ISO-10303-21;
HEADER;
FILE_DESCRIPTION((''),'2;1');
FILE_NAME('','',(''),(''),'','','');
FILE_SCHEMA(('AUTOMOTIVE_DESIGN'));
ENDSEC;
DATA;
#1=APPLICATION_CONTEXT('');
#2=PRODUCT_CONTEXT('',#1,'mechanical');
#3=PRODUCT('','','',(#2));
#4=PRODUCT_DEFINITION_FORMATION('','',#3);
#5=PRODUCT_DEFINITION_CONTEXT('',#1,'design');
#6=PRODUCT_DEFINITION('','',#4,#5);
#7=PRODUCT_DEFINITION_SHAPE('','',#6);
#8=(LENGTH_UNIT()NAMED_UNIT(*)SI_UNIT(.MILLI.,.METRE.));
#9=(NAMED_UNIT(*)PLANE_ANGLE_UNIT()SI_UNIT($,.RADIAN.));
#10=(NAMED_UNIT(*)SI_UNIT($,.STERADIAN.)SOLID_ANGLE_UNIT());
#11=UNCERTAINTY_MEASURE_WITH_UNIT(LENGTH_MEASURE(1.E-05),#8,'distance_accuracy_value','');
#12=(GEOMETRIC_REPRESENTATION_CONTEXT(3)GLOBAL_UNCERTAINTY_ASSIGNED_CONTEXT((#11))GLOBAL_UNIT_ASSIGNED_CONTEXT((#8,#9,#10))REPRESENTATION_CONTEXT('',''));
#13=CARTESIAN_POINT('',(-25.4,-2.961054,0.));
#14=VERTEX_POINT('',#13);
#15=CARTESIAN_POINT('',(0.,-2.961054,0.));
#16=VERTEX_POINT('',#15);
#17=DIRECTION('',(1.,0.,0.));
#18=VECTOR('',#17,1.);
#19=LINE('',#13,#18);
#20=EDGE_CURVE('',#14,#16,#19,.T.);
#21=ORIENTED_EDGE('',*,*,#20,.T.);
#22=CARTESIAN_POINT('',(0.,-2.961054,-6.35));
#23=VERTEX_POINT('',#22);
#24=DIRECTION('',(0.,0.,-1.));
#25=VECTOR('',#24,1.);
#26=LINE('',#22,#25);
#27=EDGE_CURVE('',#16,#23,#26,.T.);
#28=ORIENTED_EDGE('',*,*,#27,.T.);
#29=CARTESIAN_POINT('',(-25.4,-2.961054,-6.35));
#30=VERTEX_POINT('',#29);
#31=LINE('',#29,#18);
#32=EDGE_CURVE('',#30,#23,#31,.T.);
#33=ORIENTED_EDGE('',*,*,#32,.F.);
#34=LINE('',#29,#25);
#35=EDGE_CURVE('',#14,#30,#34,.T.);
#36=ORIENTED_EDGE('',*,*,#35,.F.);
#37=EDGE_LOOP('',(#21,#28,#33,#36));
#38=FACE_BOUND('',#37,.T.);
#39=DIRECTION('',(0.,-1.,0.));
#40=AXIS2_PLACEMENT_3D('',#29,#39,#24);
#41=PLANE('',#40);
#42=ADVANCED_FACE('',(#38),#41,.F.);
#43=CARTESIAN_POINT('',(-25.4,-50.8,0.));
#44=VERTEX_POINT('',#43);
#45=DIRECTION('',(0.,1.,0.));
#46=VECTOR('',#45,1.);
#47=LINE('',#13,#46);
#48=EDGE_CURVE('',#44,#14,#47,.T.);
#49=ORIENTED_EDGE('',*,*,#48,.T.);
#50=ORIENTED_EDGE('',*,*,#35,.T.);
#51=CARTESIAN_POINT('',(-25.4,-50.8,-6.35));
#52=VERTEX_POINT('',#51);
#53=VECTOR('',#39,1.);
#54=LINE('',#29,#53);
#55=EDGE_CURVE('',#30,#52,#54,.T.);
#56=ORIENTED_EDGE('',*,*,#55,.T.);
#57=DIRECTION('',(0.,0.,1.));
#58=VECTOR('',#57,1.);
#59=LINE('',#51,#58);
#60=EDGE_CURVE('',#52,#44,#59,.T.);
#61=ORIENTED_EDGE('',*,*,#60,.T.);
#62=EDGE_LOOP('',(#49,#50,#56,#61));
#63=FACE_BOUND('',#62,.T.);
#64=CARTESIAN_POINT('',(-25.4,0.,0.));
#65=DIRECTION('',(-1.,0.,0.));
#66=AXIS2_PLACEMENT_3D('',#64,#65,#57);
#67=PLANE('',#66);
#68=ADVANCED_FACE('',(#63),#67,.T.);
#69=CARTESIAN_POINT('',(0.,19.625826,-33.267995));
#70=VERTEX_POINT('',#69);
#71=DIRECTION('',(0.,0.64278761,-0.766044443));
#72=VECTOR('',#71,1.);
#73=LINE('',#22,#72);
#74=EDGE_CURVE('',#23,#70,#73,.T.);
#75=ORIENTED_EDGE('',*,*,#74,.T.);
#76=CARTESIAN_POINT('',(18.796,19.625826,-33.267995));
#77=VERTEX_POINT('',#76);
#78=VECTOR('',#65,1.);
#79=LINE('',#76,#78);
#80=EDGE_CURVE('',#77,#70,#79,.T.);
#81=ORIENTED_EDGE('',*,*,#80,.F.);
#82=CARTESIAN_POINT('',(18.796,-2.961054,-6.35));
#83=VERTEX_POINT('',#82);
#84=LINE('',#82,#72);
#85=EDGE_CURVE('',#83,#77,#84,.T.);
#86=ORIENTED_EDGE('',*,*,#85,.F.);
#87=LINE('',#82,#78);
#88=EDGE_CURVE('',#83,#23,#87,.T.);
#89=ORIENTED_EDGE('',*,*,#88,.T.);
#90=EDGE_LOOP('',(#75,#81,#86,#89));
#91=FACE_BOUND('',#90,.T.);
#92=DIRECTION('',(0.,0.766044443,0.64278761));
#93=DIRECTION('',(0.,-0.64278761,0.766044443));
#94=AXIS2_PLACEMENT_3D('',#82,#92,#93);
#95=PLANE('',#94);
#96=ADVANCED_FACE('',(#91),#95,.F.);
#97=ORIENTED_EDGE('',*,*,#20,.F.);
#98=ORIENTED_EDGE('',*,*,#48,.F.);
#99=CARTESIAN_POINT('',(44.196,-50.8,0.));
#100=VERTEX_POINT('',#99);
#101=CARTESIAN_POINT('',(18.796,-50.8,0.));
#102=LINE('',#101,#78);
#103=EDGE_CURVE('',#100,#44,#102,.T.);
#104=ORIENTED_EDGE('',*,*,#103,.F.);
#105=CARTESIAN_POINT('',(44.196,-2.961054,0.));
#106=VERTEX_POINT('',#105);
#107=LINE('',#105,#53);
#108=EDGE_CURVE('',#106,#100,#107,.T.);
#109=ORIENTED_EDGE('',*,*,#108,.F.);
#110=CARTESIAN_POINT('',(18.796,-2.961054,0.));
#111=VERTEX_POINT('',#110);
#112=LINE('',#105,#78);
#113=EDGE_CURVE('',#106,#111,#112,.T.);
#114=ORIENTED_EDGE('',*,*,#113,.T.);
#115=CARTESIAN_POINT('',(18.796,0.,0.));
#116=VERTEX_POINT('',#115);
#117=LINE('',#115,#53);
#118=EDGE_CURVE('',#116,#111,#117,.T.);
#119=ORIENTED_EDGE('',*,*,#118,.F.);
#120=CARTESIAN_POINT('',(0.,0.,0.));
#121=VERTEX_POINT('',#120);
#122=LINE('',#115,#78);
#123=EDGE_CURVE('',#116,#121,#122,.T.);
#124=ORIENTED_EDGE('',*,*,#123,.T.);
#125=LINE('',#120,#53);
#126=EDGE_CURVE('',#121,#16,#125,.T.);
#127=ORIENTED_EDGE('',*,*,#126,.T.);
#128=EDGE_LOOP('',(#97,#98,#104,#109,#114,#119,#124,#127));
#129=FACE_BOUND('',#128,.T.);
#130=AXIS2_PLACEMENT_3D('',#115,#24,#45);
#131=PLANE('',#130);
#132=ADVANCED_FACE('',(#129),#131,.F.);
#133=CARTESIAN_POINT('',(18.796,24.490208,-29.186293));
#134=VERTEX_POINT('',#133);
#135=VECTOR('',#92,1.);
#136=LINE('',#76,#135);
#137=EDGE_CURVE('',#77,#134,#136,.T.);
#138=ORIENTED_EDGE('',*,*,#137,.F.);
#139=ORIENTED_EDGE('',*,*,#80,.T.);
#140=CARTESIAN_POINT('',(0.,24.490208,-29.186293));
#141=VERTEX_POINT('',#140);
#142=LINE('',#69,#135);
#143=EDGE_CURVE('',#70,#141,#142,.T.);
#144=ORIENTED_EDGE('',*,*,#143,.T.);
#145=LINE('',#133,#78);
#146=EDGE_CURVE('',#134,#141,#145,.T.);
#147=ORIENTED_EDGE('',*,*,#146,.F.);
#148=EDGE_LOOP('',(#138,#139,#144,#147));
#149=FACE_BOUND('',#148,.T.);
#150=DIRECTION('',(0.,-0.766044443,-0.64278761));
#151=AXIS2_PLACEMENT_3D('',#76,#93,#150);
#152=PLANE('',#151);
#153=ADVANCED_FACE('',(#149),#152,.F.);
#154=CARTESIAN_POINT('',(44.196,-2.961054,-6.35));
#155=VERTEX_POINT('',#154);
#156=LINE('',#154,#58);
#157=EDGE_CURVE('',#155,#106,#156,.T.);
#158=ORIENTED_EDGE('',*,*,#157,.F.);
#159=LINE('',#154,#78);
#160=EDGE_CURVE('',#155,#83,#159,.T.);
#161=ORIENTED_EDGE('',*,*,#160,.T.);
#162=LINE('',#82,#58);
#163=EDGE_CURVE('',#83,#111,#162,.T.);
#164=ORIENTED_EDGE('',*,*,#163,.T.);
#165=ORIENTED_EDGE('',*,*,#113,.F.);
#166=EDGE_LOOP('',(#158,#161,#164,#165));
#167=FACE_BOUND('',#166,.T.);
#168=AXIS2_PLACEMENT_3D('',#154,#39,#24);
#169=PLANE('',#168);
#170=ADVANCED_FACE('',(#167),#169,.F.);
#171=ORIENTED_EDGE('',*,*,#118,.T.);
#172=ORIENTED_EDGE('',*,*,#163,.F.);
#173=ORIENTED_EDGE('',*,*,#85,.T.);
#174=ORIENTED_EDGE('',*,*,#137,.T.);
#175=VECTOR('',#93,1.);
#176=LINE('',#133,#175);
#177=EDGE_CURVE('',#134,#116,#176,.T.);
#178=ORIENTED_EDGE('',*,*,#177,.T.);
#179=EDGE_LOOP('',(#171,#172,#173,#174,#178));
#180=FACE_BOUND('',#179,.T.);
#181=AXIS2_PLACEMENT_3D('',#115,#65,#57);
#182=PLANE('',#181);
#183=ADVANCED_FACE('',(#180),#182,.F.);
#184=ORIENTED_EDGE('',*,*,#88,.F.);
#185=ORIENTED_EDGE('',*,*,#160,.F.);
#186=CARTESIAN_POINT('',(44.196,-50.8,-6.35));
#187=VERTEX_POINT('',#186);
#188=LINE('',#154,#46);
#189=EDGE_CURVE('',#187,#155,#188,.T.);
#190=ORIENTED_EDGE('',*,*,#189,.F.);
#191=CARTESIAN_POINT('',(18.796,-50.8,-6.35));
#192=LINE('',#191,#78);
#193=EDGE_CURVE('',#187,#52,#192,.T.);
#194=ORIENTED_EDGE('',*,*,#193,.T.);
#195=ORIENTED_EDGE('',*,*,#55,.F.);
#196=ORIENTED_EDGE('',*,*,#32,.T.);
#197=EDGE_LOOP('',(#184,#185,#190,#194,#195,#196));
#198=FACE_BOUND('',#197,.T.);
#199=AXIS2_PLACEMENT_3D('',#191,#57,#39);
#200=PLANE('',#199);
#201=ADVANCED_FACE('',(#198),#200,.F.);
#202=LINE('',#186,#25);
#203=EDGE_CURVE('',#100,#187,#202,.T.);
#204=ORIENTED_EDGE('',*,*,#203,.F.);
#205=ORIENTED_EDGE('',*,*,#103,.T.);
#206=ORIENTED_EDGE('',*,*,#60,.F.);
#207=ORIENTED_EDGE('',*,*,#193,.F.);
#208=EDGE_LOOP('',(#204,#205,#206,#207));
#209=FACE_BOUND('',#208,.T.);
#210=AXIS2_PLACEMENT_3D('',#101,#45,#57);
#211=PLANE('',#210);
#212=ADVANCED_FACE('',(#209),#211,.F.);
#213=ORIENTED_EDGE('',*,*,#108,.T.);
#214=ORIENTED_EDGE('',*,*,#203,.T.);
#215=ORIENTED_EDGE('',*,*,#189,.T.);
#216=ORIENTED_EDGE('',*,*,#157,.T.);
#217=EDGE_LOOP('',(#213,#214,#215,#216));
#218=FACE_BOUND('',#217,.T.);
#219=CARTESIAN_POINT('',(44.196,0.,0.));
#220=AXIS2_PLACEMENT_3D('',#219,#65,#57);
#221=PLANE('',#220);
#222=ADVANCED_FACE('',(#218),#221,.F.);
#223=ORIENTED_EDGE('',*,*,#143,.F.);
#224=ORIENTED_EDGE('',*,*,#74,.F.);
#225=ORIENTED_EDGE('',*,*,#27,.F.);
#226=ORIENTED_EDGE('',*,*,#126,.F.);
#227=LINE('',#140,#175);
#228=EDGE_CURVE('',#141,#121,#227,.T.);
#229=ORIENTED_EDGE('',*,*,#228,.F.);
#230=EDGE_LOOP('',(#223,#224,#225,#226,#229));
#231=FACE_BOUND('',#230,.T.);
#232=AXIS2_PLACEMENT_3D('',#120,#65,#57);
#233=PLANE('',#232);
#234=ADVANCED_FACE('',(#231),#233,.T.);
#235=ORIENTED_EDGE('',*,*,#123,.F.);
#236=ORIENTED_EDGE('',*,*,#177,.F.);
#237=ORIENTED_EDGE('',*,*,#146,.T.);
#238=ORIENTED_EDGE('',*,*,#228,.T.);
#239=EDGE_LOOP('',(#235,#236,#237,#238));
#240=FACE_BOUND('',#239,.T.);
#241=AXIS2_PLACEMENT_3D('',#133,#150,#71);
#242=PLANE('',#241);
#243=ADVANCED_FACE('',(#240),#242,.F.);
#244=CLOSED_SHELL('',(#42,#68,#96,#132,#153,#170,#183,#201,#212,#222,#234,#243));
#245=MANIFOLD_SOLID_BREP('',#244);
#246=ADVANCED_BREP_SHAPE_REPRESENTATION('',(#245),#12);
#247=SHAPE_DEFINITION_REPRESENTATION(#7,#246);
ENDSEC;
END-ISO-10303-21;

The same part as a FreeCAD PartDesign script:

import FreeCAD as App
import Part
import Sketcher

V = App.Vector
Q = App.Units.Quantity

doc = App.newDocument("Part")
body = doc.addObject("PartDesign::Body", "Body")

# Sketch on YZ plane
sketch1 = doc.addObject("Sketcher::SketchObject", "Sketch")
body.addObject(sketch1)
sketch1.AttachmentSupport = (doc.YZ_Plane, [""])
sketch1.MapMode = "FlatFace"
sketch1.addGeometry(Part.LineSegment(V(0, 0, 0), V(-51, 0, 0)), False)
sketch1.addGeometry(Part.LineSegment(V(-51, 0, 0), V(-51, -6, 0)), False)
sketch1.addGeometry(Part.LineSegment(V(-51, -6, 0), V(-3, -6, 0)), False)
sketch1.addGeometry(Part.LineSegment(V(-3, -6, 0), V(20, -33, 0)), False)
sketch1.addGeometry(Part.LineSegment(V(20, -33, 0), V(24, -29, 0)), False)
sketch1.addGeometry(Part.LineSegment(V(24, -29, 0), V(0, 0, 0)), False)
sketch1.addConstraint(Sketcher.Constraint("Coincident", 0, 2, 1, 1))
sketch1.addConstraint(Sketcher.Constraint("Coincident", 1, 2, 2, 1))
sketch1.addConstraint(Sketcher.Constraint("Coincident", 2, 2, 3, 1))
sketch1.addConstraint(Sketcher.Constraint("Coincident", 3, 2, 4, 1))
sketch1.addConstraint(Sketcher.Constraint("Coincident", 4, 2, 5, 1))
sketch1.addConstraint(Sketcher.Constraint("Coincident", 5, 2, 0, 1))
sketch1.addConstraint(Sketcher.Constraint("Horizontal", 0))
sketch1.addConstraint(Sketcher.Constraint("Vertical", 1))
sketch1.addConstraint(Sketcher.Constraint("Horizontal", 2))
sketch1.addConstraint(Sketcher.Constraint("Coincident", 5, 2, -1, 1))
sketch1.addConstraint(Sketcher.Constraint("Perpendicular", 3, 4))
sketch1.addConstraint(Sketcher.Constraint("Perpendicular", 4, 5))
sketch1.addConstraint(Sketcher.Constraint("DistanceX", 0, 2, 0, 1, Q("2 in")))
sketch1.addConstraint(Sketcher.Constraint("Angle", 3, Q("-50 deg")))
sketch1.addConstraint(Sketcher.Constraint("Distance", 5, Q("1.5 in")))
sketch1.addConstraint(Sketcher.Constraint("DistanceY", 1, 2, 1, 1, Q("0.25 in")))
sketch1.addConstraint(Sketcher.Constraint("Distance", 4, Q("0.25 in")))
pad1 = doc.addObject("PartDesign::Pad", "Pad")
body.addObject(pad1)
pad1.Profile = sketch1
pad1.Length = Q("0.74 in")

# Sketch on YZ plane
sketch2 = doc.addObject("Sketcher::SketchObject", "Sketch001")
body.addObject(sketch2)
sketch2.AttachmentSupport = (doc.YZ_Plane, [""])
sketch2.MapMode = "FlatFace"
sketch2.AttachmentOffset = App.Placement(V(0, 0, 0.74 * 25.4), App.Rotation())
sketch2.addGeometry(Part.LineSegment(V(-3, 0, 0), V(-51, 0, 0)), False)
sketch2.addGeometry(Part.LineSegment(V(-51, 0, 0), V(-51, -6, 0)), False)
sketch2.addGeometry(Part.LineSegment(V(-51, -6, 0), V(-3, -6, 0)), False)
sketch2.addGeometry(Part.LineSegment(V(-3, -6, 0), V(-3, 0, 0)), False)
sketch2.addConstraint(Sketcher.Constraint("Coincident", 0, 2, 1, 1))
sketch2.addConstraint(Sketcher.Constraint("Coincident", 1, 2, 2, 1))
sketch2.addConstraint(Sketcher.Constraint("Coincident", 2, 2, 3, 1))
sketch2.addConstraint(Sketcher.Constraint("Coincident", 3, 2, 0, 1))
sketch2.addConstraint(Sketcher.Constraint("Horizontal", 0))
sketch2.addConstraint(Sketcher.Constraint("Vertical", 1))
sketch2.addConstraint(Sketcher.Constraint("Horizontal", 2))
sketch2.addConstraint(Sketcher.Constraint("Vertical", 3))
sketch2.addConstraint(Sketcher.Constraint("PointOnObject", 0, 2, -1))
sketch2.addConstraint(Sketcher.Constraint("DistanceX", 0, 2, -1, 1, Q("2 in")))
sketch2.addConstraint(Sketcher.Constraint("DistanceY", 1, 2, 1, 1, Q("0.25 in")))
sketch2.addConstraint(Sketcher.Constraint("DistanceX", 0, 2, 0, 1, Q("47.838946 mm")))
pad2 = doc.addObject("PartDesign::Pad", "Pad001")
body.addObject(pad2)
pad2.Profile = sketch2
pad2.Length = Q("1 in")

# Sketch on YZ plane
sketch3 = doc.addObject("Sketcher::SketchObject", "Sketch002")
body.addObject(sketch3)
sketch3.AttachmentSupport = (doc.YZ_Plane, [""])
sketch3.MapMode = "FlatFace"
sketch3.addGeometry(Part.LineSegment(V(-3, -6, 0), V(-51, -6, 0)), False)
sketch3.addGeometry(Part.LineSegment(V(-51, -6, 0), V(-51, 0, 0)), False)
sketch3.addGeometry(Part.LineSegment(V(-51, 0, 0), V(-3, 0, 0)), False)
sketch3.addGeometry(Part.LineSegment(V(-3, 0, 0), V(-3, -6, 0)), False)
sketch3.addConstraint(Sketcher.Constraint("Coincident", 0, 2, 1, 1))
sketch3.addConstraint(Sketcher.Constraint("Coincident", 1, 2, 2, 1))
sketch3.addConstraint(Sketcher.Constraint("Coincident", 2, 2, 3, 1))
sketch3.addConstraint(Sketcher.Constraint("Coincident", 3, 2, 0, 1))
sketch3.addConstraint(Sketcher.Constraint("Horizontal", 0))
sketch3.addConstraint(Sketcher.Constraint("Vertical", 1))
sketch3.addConstraint(Sketcher.Constraint("Horizontal", 2))
sketch3.addConstraint(Sketcher.Constraint("Vertical", 3))
sketch3.addConstraint(Sketcher.Constraint("PointOnObject", 1, 2, -1))
sketch3.addConstraint(Sketcher.Constraint("DistanceX", 0, 2, -1, 1, Q("2 in")))
sketch3.addConstraint(Sketcher.Constraint("DistanceY", 1, 1, 1, 2, Q("0.25 in")))
sketch3.addConstraint(Sketcher.Constraint("DistanceX", 0, 2, 0, 1, Q("47.838946 mm")))
pad3 = doc.addObject("PartDesign::Pad", "Pad002")
body.addObject(pad3)
pad3.Profile = sketch3
pad3.Length = Q("1 in")
pad3.Reversed = True

doc.recompute()
